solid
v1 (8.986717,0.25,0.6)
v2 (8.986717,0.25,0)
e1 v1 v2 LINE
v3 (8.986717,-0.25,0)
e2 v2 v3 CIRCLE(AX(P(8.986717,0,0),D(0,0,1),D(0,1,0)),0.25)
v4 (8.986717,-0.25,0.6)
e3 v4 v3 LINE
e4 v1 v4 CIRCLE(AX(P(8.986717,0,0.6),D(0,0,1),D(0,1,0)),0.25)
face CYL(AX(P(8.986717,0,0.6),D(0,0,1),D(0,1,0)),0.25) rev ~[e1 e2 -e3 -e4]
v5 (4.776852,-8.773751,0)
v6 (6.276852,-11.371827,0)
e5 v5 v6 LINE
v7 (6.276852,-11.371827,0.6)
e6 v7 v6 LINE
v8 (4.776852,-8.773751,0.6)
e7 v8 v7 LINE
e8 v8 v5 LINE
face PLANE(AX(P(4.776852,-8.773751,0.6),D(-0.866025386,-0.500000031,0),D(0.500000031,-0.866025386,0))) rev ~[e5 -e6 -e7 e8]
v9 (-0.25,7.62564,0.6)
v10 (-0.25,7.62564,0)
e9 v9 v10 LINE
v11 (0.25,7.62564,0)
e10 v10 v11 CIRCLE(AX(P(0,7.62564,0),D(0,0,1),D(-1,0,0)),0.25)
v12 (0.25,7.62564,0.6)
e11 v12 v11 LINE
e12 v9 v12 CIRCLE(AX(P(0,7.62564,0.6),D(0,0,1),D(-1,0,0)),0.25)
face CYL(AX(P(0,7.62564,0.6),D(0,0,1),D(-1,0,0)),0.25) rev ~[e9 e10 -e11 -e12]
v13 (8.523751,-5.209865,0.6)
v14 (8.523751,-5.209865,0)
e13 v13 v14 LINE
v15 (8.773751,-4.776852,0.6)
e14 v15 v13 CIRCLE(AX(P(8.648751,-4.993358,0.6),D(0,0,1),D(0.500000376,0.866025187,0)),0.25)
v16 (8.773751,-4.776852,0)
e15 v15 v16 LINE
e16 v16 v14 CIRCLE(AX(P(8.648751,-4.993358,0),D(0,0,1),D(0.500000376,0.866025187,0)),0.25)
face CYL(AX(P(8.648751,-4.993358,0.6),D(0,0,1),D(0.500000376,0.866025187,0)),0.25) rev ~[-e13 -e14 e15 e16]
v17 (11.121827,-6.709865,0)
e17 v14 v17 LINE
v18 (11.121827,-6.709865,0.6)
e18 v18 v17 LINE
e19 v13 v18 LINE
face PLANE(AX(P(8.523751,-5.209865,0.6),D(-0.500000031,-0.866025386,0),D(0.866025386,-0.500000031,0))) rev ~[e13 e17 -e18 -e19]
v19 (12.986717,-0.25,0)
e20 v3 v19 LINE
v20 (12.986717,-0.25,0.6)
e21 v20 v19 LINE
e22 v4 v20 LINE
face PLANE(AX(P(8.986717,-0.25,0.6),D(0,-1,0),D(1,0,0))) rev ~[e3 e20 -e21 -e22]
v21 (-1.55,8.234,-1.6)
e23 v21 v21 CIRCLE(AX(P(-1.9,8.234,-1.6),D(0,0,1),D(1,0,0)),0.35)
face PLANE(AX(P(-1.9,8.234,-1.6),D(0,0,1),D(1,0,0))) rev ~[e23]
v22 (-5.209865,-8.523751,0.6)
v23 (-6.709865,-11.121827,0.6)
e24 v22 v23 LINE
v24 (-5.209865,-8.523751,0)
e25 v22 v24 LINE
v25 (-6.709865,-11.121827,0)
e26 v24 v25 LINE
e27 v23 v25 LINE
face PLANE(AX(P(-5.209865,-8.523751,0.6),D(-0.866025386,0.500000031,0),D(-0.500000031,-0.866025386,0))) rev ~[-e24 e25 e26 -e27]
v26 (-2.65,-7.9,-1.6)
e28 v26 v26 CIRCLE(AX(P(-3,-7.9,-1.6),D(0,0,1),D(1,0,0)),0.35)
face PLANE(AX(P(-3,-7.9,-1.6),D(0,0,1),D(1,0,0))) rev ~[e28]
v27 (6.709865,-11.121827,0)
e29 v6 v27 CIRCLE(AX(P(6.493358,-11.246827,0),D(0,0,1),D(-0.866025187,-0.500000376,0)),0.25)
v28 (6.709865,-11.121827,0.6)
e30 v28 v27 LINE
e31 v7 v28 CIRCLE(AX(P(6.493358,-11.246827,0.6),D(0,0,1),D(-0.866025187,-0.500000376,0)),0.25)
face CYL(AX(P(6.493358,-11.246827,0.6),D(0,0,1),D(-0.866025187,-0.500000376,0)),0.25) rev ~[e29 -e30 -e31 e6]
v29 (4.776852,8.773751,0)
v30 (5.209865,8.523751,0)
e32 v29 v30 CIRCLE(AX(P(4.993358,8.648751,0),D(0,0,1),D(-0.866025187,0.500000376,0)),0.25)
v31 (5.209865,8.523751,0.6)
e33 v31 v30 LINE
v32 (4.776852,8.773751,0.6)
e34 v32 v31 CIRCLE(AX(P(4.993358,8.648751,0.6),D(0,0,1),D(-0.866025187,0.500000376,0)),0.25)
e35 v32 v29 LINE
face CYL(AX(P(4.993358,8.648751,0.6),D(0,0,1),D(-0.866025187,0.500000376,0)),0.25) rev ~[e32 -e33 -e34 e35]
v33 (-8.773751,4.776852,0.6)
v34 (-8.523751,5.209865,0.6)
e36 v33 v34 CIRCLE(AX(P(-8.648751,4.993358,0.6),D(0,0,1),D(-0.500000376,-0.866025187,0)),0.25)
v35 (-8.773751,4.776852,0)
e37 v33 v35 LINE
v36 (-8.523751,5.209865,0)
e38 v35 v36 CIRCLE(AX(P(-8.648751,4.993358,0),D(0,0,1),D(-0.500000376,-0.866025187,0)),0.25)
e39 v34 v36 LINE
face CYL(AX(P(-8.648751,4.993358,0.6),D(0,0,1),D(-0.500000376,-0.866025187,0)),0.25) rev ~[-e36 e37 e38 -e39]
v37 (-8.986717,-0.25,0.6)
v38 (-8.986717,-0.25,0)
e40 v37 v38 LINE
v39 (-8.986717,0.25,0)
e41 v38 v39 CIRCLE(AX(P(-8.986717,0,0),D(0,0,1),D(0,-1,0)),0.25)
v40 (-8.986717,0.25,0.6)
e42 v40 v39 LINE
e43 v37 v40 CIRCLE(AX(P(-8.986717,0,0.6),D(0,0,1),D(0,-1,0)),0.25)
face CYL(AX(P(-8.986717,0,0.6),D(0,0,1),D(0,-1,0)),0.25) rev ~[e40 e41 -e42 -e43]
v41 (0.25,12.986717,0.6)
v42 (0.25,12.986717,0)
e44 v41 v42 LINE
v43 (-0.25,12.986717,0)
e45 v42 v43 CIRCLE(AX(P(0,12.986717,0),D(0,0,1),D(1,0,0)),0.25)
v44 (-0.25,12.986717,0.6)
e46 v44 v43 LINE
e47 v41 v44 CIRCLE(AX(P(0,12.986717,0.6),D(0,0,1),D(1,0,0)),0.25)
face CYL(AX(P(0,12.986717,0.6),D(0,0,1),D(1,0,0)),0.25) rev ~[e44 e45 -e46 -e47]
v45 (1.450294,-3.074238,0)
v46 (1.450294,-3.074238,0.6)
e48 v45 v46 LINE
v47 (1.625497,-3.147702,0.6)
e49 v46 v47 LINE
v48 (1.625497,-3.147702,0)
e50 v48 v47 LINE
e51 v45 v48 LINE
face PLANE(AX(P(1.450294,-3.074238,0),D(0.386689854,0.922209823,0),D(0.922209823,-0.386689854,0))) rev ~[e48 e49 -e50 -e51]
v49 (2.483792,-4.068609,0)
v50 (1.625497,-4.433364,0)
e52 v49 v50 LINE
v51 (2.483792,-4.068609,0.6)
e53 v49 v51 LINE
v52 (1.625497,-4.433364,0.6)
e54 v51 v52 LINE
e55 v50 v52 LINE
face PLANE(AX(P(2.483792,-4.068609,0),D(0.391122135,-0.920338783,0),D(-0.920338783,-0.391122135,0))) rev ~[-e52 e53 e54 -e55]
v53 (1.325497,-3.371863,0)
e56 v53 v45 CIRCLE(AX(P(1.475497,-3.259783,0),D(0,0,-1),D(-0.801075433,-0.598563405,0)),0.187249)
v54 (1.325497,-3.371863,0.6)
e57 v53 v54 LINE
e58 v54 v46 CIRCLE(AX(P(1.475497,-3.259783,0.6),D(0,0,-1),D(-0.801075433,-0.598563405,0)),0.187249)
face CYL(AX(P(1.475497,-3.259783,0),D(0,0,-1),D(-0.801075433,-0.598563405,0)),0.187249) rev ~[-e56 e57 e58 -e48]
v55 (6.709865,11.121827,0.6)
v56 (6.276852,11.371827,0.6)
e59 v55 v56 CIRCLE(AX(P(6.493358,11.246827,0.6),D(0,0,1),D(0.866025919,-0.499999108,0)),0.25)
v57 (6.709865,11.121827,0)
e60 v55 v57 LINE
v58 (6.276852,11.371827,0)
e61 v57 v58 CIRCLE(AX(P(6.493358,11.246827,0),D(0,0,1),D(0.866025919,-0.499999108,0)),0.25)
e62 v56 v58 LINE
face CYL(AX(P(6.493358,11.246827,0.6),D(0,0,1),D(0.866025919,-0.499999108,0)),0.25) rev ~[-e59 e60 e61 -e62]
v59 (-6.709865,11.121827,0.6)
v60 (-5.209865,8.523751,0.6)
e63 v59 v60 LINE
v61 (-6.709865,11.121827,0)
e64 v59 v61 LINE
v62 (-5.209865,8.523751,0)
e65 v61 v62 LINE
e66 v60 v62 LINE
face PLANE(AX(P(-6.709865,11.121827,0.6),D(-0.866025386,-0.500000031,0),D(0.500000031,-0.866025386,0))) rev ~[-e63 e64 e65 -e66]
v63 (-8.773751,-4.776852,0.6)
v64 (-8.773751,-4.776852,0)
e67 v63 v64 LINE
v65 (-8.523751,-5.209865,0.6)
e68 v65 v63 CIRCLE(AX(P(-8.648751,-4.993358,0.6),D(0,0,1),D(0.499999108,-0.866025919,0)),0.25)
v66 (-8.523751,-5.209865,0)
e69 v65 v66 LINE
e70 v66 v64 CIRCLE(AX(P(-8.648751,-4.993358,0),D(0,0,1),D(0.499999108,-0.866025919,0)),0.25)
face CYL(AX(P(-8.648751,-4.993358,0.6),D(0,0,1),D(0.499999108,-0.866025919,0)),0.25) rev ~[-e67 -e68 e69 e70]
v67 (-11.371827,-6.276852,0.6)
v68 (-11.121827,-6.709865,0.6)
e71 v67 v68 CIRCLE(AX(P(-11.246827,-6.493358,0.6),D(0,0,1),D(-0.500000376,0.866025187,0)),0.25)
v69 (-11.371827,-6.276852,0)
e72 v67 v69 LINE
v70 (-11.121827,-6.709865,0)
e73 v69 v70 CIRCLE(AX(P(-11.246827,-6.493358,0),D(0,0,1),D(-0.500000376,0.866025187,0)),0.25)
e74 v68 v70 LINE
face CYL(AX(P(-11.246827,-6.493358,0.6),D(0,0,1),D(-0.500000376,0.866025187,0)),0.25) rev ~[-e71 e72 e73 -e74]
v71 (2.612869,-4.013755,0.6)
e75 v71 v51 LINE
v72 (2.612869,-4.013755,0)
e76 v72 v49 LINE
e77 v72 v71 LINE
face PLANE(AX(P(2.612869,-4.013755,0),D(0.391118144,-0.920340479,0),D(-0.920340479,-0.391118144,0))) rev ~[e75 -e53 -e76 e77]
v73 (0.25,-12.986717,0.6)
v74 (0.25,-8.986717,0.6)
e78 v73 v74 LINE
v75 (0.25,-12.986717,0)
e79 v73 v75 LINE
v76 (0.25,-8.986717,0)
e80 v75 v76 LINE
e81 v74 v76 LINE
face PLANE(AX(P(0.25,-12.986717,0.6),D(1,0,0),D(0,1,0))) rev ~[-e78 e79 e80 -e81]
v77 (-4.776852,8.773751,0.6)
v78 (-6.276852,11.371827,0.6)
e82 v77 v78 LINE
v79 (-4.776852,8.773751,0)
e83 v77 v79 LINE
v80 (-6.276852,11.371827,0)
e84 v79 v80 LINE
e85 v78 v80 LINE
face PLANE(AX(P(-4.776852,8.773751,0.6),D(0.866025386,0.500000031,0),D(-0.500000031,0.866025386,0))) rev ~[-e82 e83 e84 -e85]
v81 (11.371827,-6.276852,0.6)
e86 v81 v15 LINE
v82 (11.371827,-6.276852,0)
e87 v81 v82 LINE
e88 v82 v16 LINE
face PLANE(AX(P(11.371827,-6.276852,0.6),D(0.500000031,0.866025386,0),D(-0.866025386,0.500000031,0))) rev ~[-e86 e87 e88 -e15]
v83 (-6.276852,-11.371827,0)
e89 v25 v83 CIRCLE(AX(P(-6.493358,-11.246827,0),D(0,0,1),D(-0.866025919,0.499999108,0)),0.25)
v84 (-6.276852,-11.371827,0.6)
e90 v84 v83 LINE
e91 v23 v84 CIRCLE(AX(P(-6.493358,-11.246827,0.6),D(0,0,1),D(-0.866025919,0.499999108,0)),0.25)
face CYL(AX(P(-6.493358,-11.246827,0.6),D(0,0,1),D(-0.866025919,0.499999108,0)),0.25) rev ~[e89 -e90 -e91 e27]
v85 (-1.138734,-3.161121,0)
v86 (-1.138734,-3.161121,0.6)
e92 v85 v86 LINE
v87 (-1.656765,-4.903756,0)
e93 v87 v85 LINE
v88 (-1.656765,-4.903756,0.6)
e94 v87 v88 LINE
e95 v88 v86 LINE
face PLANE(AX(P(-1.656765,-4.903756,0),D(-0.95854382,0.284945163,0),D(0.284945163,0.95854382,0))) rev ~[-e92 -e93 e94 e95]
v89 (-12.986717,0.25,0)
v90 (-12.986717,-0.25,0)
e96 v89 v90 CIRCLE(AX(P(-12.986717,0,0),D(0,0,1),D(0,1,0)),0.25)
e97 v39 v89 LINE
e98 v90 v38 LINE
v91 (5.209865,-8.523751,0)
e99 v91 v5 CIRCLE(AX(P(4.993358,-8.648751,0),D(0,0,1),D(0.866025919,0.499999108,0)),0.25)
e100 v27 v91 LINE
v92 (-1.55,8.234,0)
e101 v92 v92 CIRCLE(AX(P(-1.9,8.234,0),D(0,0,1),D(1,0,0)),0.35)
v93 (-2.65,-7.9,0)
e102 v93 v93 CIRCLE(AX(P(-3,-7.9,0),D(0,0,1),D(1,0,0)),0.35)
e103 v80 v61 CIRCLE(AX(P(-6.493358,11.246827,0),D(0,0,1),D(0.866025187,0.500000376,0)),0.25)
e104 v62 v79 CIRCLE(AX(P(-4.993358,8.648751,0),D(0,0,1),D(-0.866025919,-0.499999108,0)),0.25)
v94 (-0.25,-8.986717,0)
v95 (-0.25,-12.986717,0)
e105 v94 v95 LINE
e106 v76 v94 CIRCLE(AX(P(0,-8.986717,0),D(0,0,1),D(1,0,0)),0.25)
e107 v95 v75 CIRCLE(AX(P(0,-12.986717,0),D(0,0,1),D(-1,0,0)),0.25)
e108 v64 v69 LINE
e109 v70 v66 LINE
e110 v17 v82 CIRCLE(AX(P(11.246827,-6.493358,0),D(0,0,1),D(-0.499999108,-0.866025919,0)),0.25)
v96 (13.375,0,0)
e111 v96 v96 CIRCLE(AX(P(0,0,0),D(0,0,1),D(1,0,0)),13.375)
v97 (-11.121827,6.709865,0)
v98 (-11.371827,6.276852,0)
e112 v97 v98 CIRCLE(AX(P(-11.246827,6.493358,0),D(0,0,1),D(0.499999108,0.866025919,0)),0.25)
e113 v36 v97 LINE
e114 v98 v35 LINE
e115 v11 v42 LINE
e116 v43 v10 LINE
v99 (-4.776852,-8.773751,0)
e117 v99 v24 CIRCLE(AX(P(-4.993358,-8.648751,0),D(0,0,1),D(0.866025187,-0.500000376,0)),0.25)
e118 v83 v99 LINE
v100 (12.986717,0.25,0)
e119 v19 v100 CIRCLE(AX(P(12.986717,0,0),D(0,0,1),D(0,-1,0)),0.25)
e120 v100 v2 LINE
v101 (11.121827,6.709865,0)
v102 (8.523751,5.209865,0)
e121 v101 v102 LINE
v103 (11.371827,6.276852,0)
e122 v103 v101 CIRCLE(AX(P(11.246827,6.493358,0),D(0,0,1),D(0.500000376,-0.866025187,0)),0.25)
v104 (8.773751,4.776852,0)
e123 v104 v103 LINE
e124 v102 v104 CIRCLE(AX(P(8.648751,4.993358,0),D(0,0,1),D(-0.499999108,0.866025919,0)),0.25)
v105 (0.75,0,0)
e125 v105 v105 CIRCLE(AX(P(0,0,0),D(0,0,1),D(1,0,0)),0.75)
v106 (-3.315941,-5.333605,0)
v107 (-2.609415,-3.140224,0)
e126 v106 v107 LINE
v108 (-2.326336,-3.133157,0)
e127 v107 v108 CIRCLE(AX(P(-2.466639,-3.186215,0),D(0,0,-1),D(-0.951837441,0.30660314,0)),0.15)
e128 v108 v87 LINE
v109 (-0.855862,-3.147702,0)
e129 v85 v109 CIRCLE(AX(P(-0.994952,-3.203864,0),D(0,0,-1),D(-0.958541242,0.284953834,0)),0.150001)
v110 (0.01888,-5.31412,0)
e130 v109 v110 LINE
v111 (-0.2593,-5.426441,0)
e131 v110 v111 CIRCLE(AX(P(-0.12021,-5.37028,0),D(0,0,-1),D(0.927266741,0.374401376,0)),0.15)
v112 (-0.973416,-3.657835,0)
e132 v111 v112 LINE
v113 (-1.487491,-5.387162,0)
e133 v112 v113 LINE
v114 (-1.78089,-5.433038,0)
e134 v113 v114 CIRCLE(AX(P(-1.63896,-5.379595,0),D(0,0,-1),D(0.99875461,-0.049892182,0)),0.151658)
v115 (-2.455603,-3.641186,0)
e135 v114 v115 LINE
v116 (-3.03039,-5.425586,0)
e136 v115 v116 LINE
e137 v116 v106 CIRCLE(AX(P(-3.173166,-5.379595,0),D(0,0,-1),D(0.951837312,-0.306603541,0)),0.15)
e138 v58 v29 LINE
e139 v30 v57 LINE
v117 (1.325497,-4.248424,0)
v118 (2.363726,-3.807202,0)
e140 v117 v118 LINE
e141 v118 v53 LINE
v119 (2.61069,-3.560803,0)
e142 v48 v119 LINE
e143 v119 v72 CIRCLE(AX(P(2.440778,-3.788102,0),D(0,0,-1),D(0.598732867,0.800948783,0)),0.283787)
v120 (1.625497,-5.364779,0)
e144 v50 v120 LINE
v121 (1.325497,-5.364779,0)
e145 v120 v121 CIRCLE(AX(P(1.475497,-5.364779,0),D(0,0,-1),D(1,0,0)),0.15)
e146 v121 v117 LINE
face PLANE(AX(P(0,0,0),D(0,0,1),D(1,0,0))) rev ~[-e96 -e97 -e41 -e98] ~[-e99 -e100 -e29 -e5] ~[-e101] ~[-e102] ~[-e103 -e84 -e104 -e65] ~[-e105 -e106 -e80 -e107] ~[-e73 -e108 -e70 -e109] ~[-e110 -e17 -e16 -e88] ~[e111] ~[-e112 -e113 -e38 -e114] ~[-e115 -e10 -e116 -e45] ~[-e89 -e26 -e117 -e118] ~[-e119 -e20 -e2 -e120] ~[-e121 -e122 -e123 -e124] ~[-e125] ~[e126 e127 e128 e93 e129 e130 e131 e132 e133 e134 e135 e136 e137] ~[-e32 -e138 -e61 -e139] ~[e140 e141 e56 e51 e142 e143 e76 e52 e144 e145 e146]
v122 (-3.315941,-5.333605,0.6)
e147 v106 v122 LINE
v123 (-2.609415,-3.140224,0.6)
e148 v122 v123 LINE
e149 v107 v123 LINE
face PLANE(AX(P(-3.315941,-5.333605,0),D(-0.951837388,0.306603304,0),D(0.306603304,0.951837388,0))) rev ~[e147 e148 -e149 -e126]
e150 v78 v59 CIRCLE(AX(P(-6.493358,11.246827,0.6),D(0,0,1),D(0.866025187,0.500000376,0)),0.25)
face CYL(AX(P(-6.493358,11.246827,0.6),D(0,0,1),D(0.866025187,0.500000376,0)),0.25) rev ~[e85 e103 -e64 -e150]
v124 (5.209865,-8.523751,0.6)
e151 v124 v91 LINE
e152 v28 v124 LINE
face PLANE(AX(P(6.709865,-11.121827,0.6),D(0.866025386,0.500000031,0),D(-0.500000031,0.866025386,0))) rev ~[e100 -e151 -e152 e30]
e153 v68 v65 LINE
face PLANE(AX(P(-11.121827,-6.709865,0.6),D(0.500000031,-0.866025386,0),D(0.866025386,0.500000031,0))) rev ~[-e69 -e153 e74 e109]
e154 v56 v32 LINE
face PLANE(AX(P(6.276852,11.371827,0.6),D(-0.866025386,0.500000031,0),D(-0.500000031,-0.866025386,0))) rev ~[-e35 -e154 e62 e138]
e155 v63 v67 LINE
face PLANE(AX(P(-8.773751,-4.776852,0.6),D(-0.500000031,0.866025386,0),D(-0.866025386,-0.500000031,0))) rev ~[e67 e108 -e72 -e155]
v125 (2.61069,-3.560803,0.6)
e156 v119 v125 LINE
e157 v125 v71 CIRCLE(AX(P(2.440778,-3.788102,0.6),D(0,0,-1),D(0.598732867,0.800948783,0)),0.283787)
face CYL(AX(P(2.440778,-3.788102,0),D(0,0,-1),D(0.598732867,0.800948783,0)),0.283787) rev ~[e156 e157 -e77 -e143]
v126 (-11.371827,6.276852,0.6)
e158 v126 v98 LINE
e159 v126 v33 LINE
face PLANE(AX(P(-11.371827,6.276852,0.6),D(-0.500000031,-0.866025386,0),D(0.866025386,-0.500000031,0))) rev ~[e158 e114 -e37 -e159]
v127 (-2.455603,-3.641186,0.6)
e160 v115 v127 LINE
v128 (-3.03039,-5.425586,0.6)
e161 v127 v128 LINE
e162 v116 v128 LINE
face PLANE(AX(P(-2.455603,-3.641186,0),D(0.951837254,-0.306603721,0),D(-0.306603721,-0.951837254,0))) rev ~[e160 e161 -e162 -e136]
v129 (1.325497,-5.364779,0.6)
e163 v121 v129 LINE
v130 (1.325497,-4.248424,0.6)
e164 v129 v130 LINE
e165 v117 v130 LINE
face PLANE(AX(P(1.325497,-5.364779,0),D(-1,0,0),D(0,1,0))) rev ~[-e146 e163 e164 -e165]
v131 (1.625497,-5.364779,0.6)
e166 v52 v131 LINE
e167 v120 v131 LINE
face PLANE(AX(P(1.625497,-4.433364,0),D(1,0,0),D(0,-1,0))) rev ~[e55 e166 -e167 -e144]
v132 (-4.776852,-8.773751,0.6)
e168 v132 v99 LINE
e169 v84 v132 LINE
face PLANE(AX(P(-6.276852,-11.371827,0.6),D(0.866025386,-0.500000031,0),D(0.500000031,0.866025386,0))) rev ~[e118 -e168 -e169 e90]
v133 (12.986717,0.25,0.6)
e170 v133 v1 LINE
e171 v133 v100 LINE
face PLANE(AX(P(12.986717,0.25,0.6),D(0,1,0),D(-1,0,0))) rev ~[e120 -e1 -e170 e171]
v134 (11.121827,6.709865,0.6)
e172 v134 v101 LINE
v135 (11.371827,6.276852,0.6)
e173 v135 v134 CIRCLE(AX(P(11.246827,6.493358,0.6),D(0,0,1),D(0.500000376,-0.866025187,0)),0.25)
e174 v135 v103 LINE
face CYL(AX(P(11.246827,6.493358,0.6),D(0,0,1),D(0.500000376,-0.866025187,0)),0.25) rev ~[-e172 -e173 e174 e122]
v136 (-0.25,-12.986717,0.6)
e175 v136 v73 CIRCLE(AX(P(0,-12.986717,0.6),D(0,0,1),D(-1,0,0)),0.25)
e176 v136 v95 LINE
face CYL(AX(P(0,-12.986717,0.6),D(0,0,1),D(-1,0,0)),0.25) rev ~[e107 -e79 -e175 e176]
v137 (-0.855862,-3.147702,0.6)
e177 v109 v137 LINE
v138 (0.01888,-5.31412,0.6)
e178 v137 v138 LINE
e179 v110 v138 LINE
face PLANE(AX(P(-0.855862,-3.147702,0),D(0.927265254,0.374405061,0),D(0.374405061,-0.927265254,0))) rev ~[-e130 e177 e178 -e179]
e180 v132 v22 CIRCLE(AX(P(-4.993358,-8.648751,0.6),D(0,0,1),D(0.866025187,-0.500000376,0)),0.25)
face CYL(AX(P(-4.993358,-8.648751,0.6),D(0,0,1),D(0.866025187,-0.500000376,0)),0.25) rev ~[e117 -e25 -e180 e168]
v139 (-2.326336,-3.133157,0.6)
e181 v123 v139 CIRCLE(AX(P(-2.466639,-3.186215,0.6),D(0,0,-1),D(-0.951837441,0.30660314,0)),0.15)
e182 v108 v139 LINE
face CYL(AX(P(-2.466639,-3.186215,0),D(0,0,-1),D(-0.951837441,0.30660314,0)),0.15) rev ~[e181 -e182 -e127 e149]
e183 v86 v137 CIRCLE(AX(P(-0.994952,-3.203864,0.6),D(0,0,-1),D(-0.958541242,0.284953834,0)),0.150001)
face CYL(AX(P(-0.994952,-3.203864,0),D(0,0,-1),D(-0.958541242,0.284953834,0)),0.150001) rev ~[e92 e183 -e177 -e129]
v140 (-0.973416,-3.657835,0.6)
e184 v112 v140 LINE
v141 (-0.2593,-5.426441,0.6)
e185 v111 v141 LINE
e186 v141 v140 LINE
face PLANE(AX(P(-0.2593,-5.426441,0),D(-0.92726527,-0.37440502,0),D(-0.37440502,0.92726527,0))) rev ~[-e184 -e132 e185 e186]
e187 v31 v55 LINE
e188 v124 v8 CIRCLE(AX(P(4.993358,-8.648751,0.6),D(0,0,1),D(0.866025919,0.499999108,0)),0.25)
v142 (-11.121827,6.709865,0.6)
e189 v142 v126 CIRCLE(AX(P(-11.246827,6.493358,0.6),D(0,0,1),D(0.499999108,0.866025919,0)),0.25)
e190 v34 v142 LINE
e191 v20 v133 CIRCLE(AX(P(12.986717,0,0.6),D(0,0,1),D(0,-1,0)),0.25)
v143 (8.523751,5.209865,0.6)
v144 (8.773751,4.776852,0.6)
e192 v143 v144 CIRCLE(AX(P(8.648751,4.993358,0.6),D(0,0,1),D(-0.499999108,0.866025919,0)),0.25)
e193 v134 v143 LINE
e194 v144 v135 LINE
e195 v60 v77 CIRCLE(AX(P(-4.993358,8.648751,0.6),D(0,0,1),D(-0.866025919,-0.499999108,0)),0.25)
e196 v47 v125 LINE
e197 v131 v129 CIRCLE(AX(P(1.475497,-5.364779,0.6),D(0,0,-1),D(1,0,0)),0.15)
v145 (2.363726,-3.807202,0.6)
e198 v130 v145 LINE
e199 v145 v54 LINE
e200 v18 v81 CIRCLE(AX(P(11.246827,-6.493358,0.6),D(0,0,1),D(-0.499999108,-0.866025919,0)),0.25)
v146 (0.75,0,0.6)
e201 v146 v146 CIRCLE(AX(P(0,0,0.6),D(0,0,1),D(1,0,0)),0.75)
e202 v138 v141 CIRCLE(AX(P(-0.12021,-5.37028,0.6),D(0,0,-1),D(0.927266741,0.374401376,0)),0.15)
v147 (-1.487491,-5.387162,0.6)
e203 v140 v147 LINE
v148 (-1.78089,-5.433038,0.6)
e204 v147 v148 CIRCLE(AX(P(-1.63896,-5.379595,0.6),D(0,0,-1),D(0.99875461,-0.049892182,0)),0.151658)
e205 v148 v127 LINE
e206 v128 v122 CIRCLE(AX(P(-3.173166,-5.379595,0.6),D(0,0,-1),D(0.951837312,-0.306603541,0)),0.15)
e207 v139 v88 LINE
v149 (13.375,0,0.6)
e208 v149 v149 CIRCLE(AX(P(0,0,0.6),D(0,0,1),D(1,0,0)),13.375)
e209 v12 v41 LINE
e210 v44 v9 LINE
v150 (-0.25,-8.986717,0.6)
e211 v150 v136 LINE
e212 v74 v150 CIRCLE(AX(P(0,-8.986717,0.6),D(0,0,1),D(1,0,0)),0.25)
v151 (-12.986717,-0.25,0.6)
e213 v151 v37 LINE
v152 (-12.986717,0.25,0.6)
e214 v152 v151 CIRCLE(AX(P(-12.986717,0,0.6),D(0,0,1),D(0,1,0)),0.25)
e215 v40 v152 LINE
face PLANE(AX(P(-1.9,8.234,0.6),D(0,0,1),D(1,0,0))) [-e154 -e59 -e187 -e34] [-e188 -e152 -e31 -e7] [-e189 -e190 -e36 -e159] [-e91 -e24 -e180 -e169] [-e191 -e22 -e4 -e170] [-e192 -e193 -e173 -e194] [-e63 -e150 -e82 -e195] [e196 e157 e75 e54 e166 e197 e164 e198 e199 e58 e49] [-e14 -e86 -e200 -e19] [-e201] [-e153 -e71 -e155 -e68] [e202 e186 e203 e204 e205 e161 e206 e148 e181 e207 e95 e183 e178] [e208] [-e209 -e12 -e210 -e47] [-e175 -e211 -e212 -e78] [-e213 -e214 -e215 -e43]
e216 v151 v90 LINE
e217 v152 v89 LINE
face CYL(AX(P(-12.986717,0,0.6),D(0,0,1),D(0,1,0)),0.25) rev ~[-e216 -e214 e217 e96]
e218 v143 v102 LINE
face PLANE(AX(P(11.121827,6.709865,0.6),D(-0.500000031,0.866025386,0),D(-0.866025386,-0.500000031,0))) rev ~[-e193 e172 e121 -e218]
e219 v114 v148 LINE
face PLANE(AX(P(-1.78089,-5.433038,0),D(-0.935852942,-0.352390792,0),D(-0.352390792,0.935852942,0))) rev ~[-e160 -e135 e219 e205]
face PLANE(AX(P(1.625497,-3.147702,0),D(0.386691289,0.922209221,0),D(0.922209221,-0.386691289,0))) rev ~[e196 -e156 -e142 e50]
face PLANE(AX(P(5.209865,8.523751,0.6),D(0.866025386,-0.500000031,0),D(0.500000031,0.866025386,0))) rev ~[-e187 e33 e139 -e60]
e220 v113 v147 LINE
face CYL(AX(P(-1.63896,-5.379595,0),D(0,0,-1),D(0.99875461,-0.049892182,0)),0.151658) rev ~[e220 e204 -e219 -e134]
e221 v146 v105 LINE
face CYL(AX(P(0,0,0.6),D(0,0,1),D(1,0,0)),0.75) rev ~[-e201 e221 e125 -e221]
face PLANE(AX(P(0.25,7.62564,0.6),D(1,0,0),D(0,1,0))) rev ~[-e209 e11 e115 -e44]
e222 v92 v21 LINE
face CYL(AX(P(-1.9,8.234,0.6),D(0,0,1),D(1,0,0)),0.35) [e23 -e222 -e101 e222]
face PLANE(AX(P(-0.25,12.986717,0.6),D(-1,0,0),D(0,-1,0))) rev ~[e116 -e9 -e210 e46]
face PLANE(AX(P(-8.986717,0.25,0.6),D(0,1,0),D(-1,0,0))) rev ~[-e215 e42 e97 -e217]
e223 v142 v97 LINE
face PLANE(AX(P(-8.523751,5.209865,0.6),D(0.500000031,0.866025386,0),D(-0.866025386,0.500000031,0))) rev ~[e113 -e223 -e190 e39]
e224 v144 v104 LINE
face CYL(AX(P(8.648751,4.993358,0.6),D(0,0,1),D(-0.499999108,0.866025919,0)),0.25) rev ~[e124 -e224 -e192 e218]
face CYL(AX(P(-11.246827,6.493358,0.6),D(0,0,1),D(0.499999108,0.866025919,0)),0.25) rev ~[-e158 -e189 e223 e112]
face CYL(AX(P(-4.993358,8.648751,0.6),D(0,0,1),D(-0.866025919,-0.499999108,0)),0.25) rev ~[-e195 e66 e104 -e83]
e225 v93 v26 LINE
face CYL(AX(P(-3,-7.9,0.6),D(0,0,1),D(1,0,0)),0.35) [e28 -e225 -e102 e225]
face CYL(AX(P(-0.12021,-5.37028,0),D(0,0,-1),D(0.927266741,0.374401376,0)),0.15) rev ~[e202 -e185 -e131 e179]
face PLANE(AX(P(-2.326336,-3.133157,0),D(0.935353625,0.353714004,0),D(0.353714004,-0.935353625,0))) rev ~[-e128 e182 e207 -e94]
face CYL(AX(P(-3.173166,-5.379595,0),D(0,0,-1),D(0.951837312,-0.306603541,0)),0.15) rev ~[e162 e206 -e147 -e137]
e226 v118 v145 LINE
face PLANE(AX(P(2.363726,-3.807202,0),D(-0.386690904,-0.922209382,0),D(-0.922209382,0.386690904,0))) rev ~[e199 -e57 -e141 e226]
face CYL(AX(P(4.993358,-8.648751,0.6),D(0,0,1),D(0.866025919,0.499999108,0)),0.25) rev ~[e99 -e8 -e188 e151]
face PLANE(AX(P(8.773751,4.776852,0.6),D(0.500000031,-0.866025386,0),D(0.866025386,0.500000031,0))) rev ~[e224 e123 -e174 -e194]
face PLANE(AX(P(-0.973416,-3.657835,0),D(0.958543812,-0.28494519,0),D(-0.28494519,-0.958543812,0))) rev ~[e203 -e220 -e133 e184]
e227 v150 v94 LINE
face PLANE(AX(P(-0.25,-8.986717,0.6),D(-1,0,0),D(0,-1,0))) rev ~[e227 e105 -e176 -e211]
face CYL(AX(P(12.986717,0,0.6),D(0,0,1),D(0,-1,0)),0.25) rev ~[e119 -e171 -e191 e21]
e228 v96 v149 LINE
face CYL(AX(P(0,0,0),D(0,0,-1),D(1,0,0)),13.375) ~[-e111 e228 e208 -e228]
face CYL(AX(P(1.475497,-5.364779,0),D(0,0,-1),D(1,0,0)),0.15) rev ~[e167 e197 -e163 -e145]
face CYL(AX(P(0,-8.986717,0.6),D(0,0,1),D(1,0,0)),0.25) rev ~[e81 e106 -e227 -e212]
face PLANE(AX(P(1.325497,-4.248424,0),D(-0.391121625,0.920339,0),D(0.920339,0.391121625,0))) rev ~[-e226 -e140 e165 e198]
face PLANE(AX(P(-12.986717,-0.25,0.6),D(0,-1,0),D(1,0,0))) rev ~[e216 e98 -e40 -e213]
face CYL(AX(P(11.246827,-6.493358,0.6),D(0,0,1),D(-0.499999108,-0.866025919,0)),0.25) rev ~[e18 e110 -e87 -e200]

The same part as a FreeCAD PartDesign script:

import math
import FreeCAD as App
import Part
import Sketcher
from FreeCAD import Vector
Q = App.Units.Quantity

doc = App.newDocument("Part")
body = doc.addObject("PartDesign::Body", "Body")

# Sketch on XY plane
sketch1 = body.newObject("Sketcher::SketchObject", "Sketch")
sketch1.AttachmentSupport = (doc.getObject("XY_Plane"), [""])
sketch1.MapMode = "FlatFace"
sketch1.addGeometry([
    Part.Circle(Vector(0, 0, 0), Vector(0, 0, 1), 13.375),  # 0
    Part.LineSegment(Vector(-1.78089, -5.433038, 0), Vector(-2.455603, -3.641186, 0)),  # 1
    Part.LineSegment(Vector(-2.455603, -3.641186, 0), Vector(-3.03039, -5.425586, 0)),  # 2
    Part.ArcOfCircle(Part.Circle(Vector(-3.173166, -5.379595, 0), Vector(0, 0, 1), 0.15), math.radians(162.145337), math.radians(342.145337)),  # 3
    Part.LineSegment(Vector(-3.315941, -5.333605, 0), Vector(-2.609415, -3.140224, 0)),  # 4
    Part.ArcOfCircle(Part.Circle(Vector(-2.466639, -3.186215, 0), Vector(0, 0, 1), 0.15), math.radians(20.714796), math.radians(162.145361)),  # 5
    Part.LineSegment(Vector(-2.326336, -3.133157, 0), Vector(-1.656765, -4.903756, 0)),  # 6
    Part.LineSegment(Vector(-1.656765, -4.903756, 0), Vector(-1.138734, -3.161121, 0)),  # 7
    Part.ArcOfCircle(Part.Circle(Vector(-0.994952, -3.203864, 0), Vector(0, 0, 1), 0.150001), math.radians(21.988059), math.radians(163.443911)),  # 8
    Part.LineSegment(Vector(-0.855862, -3.147702, 0), Vector(0.01888, -5.31412, 0)),  # 9
    Part.ArcOfCircle(Part.Circle(Vector(-0.12021, -5.37028, 0), Vector(0, 0, 1), 0.15), math.radians(-158.01247), math.radians(21.987319)),  # 10
    Part.LineSegment(Vector(-0.2593, -5.426441, 0), Vector(-0.973416, -3.657835, 0)),  # 11
    Part.LineSegment(Vector(-0.973416, -3.657835, 0), Vector(-1.487491, -5.387162, 0)),  # 12
    Part.ArcOfCircle(Part.Circle(Vector(-1.63896, -5.379595, 0), Vector(0, 0, 1), 0.151658), math.radians(-159.366528), math.radians(-2.859799)),  # 13
    Part.LineSegment(Vector(1.625497, -4.433364, 0), Vector(1.625497, -5.364779, 0)),  # 14
    Part.ArcOfCircle(Part.Circle(Vector(1.475497, -5.364779, 0), Vector(0, 0, 1), 0.15), math.radians(180), math.radians(360)),  # 15
    Part.LineSegment(Vector(1.325497, -5.364779, 0), Vector(1.325497, -4.248424, 0)),  # 16
    Part.LineSegment(Vector(1.325497, -4.248424, 0), Vector(2.363726, -3.807202, 0)),  # 17
    Part.LineSegment(Vector(2.363726, -3.807202, 0), Vector(1.325497, -3.371863, 0)),  # 18
    Part.ArcOfCircle(Part.Circle(Vector(1.475497, -3.259783, 0), Vector(0, 0, 1), 0.187249), math.radians(97.735384), math.radians(216.767078)),  # 19
    Part.LineSegment(Vector(1.450294, -3.074238, 0), Vector(1.625497, -3.147702, 0)),  # 20
    Part.LineSegment(Vector(1.625497, -3.147702, 0), Vector(2.61069, -3.560803, 0)),  # 21
    Part.ArcOfCircle(Part.Circle(Vector(2.440778, -3.788102, 0), Vector(0, 0, 1), 0.283787), math.radians(-52.669543), math.radians(53.2208)),  # 22
    Part.LineSegment(Vector(2.612869, -4.013755, 0), Vector(2.483792, -4.068609, 0)),  # 23
    Part.LineSegment(Vector(2.483792, -4.068609, 0), Vector(1.625497, -4.433364, 0)),  # 24
], False)
sketch1.addConstraint([
    Sketcher.Constraint("Coincident", 1, 2, 2, 1),
    Sketcher.Constraint("Tangent", 2, 2, 3, 2),
    Sketcher.Constraint("Tangent", 3, 1, 4, 1),
    Sketcher.Constraint("Tangent", 4, 2, 5, 2),
    Sketcher.Constraint("Coincident", 5, 1, 6, 1),
    Sketcher.Constraint("Coincident", 6, 2, 7, 1),
    Sketcher.Constraint("Coincident", 7, 2, 8, 2),
    Sketcher.Constraint("Coincident", 8, 1, 9, 1),
    Sketcher.Constraint("Coincident", 9, 2, 10, 2),
    Sketcher.Constraint("Tangent", 10, 1, 11, 1),
    Sketcher.Constraint("Coincident", 11, 2, 12, 1),
    Sketcher.Constraint("Coincident", 12, 2, 13, 2),
    Sketcher.Constraint("Coincident", 13, 1, 1, 1),
    Sketcher.Constraint("Tangent", 14, 2, 15, 2),
    Sketcher.Constraint("Tangent", 15, 1, 16, 1),
    Sketcher.Constraint("Coincident", 16, 2, 17, 1),
    Sketcher.Constraint("Coincident", 17, 2, 18, 1),
    Sketcher.Constraint("Coincident", 18, 2, 19, 2),
    Sketcher.Constraint("Coincident", 19, 1, 20, 1),
    Sketcher.Constraint("Coincident", 20, 2, 21, 1),
    Sketcher.Constraint("Coincident", 21, 2, 22, 2),
    Sketcher.Constraint("Coincident", 22, 1, 23, 1),
    Sketcher.Constraint("Coincident", 23, 2, 24, 1),
    Sketcher.Constraint("Coincident", 24, 2, 14, 1),
    Sketcher.Constraint("Vertical", 14),
    Sketcher.Constraint("Vertical", 16),
    Sketcher.Constraint("Coincident", 0, 3, -1, 1),
    Sketcher.Constraint("Equal", 3, 5),
    Sketcher.Constraint("Equal", 5, 8),
    Sketcher.Constraint("Equal", 8, 10),
    Sketcher.Constraint("Equal", 10, 15),
    Sketcher.Constraint("Parallel", 2, 4),
    Sketcher.Constraint("Parallel", 9, 11),
    Sketcher.Constraint("Parallel", 7, 12),
    Sketcher.Constraint("Parallel", 18, 20),
    Sketcher.Constraint("Parallel", 20, 21),
    Sketcher.Constraint("Parallel", 17, 24),
    Sketcher.Constraint("Horizontal", 3, 3, 13, 3),
    Sketcher.Constraint("Horizontal", 8, 1, 20, 2),
    Sketcher.Constraint("Vertical", 15, 3, 19, 3),
    Sketcher.Constraint("Vertical", 16, 2, 18, 2),
    Sketcher.Constraint("Vertical", 14, 2, 20, 2),
    Sketcher.Constraint("Diameter", 0, Q("26.75 mm")),
    Sketcher.Constraint("Radius", 3, Q("0.15 mm")),
    Sketcher.Constraint("Radius", 13, Q("0.151658 mm")),
    Sketcher.Constraint("Radius", 19, Q("0.187249 mm")),
    Sketcher.Constraint("Radius", 22, Q("0.283787 mm")),
    Sketcher.Constraint("DistanceY", 22, 3, -1, 1, Q("3.788102 mm")),
    Sketcher.Constraint("DistanceX", 10, 1, -1, 1, Q("0.2593 mm")),
    Sketcher.Constraint("DistanceY", 10, 3, 15, 3, Q("0.005501 mm")),
    Sketcher.Constraint("DistanceY", 2, 2, 1, 2, Q("1.7844 mm")),
    Sketcher.Constraint("DistanceX", 3, 1, 5, 3, Q("0.849302 mm")),
    Sketcher.Constraint("DistanceX", 3, 3, 6, 2, Q("1.516401 mm")),
    Sketcher.Constraint("DistanceX", 13, 1, 12, 2, Q("0.293399 mm")),
    Sketcher.Constraint("DistanceX", 2, 2, 13, 1, Q("1.2495 mm")),
    Sketcher.Constraint("DistanceY", 17, 2, 22, 3, Q("0.0191 mm")),
    Sketcher.Constraint("DistanceY", 17, 2, 20, 2, Q("0.6595 mm")),
    Sketcher.Constraint("DistanceY", 22, 3, 21, 2, Q("0.227299 mm")),
    Sketcher.Constraint("Distance", 2, Q("1.87469 mm")),
    Sketcher.Constraint("Distance", 9, Q("2.336352 mm")),
    Sketcher.Constraint("Distance", 12, Q("1.804119 mm")),
    Sketcher.Constraint("Distance", 20, Q("0.189982 mm")),
    Sketcher.Constraint("Distance", 23, Q("0.140249 mm")),
    Sketcher.Constraint("DistanceY", 14, 2, 14, 1, Q("0.931415 mm")),
    Sketcher.Constraint("DistanceY", 16, 1, 16, 2, Q("1.116355 mm")),
    Sketcher.Constraint("DistanceX", 5, 3, -1, 1, Q("2.466639 mm")),
    Sketcher.Constraint("DistanceX", 10, 3, -1, 1, Q("0.12021 mm")),
    Sketcher.Constraint("DistanceY", 10, 3, -1, 1, Q("5.37028 mm")),
    Sketcher.Constraint("DistanceX", 13, 3, -1, 1, Q("1.63896 mm")),
    Sketcher.Constraint("DistanceY", 7, 2, -1, 1, Q("3.161121 mm")),
    Sketcher.Constraint("DistanceY", 13, 1, -1, 1, Q("5.433038 mm")),
    Sketcher.Constraint("DistanceY", 19, 1, -1, 1, Q("3.074238 mm")),
    Sketcher.Constraint("DistanceX", -1, 1, 21, 2, Q("2.61069 mm")),
    Sketcher.Constraint("DistanceX", -1, 1, 22, 1, Q("2.612869 mm")),
    Sketcher.Constraint("DistanceY", 8, 3, 5, 3, Q("0.01765 mm")),
    Sketcher.Constraint("DistanceX", 4, 2, 5, 1, Q("0.283079 mm")),
])
pad1 = body.newObject("PartDesign::Pad", "Pad")
pad1.Profile = sketch1
pad1.Length = 0.6

# Sketch on XY plane
sketch2 = body.newObject("Sketcher::SketchObject", "Sketch001")
sketch2.AttachmentSupport = (doc.getObject("XY_Plane"), [""])
sketch2.MapMode = "FlatFace"
sketch2.AttachmentOffset = App.Placement(Vector(0, 0, 0.6), App.Rotation())
sketch2.addGeometry([
    Part.ArcOfCircle(Part.Circle(Vector(-11.246827, 6.493358, 0), Vector(0, 0, 1), 0.25), math.radians(60.000059), math.radians(239.999975)),  # 0
    Part.LineSegment(Vector(-11.371827, 6.276852, 0), Vector(-8.773751, 4.776852, 0)),  # 1
    Part.ArcOfCircle(Part.Circle(Vector(-8.648751, 4.993358, 0), Vector(0, 0, 1), 0.25), math.radians(-120.000025), math.radians(60.000059)),  # 2
    Part.LineSegment(Vector(-8.523751, 5.209865, 0), Vector(-11.121827, 6.709865, 0)),  # 3
    Part.LineSegment(Vector(-8.986717, 0.25, 0), Vector(-12.986717, 0.25, 0)),  # 4
    Part.ArcOfCircle(Part.Circle(Vector(-12.986717, 0, 0), Vector(0, 0, 1), 0.25), math.radians(90), math.radians(270)),  # 5
    Part.LineSegment(Vector(-12.986717, -0.25, 0), Vector(-8.986717, -0.25, 0)),  # 6
    Part.ArcOfCircle(Part.Circle(Vector(-8.986717, 0, 0), Vector(0, 0, 1), 0.25), math.radians(-90), math.radians(90)),  # 7
    Part.ArcOfCircle(Part.Circle(Vector(-6.493358, 11.246827, 0), Vector(0, 0, 1), 0.25), math.radians(30.000025), math.radians(209.999941)),  # 8
    Part.LineSegment(Vector(-6.709865, 11.121827, 0), Vector(-5.209865, 8.523751, 0)),  # 9
    Part.ArcOfCircle(Part.Circle(Vector(-4.993358, 8.648751, 0), Vector(0, 0, 1), 0.25), math.radians(-150.000059), math.radians(30.000025)),  # 10
    Part.LineSegment(Vector(-4.776852, 8.773751, 0), Vector(-6.276852, 11.371827, 0)),  # 11
    Part.LineSegment(Vector(0.25, 7.62564, 0), Vector(0.25, 12.986717, 0)),  # 12
    Part.ArcOfCircle(Part.Circle(Vector(0, 12.986717, 0), Vector(0, 0, 1), 0.25), math.radians(0), math.radians(180)),  # 13
    Part.LineSegment(Vector(-0.25, 12.986717, 0), Vector(-0.25, 7.62564, 0)),  # 14
    Part.ArcOfCircle(Part.Circle(Vector(0, 7.62564, 0), Vector(0, 0, 1), 0.25), math.radians(180), math.radians(360)),  # 15
    Part.ArcOfCircle(Part.Circle(Vector(6.493358, 11.246827, 0), Vector(0, 0, 1), 0.25), math.radians(-29.999941), math.radians(149.999975)),  # 16
    Part.LineSegment(Vector(6.276852, 11.371827, 0), Vector(4.776852, 8.773751, 0)),  # 17
    Part.ArcOfCircle(Part.Circle(Vector(4.993358, 8.648751, 0), Vector(0, 0, 1), 0.25), math.radians(149.999975), math.radians(330.000059)),  # 18
    Part.LineSegment(Vector(5.209865, 8.523751, 0), Vector(6.709865, 11.121827, 0)),  # 19
    Part.ArcOfCircle(Part.Circle(Vector(11.246827, 6.493358, 0), Vector(0, 0, 1), 0.25), math.radians(-59.999975), math.radians(119.999941)),  # 20
    Part.LineSegment(Vector(11.121827, 6.709865, 0), Vector(8.523751, 5.209865, 0)),  # 21
    Part.ArcOfCircle(Part.Circle(Vector(8.648751, 4.993358, 0), Vector(0, 0, 1), 0.25), math.radians(119.999941), math.radians(300.000025)),  # 22
    Part.LineSegment(Vector(8.773751, 4.776852, 0), Vector(11.371827, 6.276852, 0)),  # 23
    Part.LineSegment(Vector(8.986717, -0.25, 0), Vector(12.986717, -0.25, 0)),  # 24
    Part.ArcOfCircle(Part.Circle(Vector(12.986717, 0, 0), Vector(0, 0, 1), 0.25), math.radians(-90), math.radians(90)),  # 25
    Part.LineSegment(Vector(12.986717, 0.25, 0), Vector(8.986717, 0.25, 0)),  # 26
    Part.ArcOfCircle(Part.Circle(Vector(8.986717, 0, 0), Vector(0, 0, 1), 0.25), math.radians(90), math.radians(270)),  # 27
    Part.ArcOfCircle(Part.Circle(Vector(11.246827, -6.493358, 0), Vector(0, 0, 1), 0.25), math.radians(-119.999941), math.radians(59.999975)),  # 28
    Part.LineSegment(Vector(11.371827, -6.276852, 0), Vector(8.773751, -4.776852, 0)),  # 29
    Part.ArcOfCircle(Part.Circle(Vector(8.648751, -4.993358, 0), Vector(0, 0, 1), 0.25), math.radians(59.999975), math.radians(240.000059)),  # 30
    Part.LineSegment(Vector(8.523751, -5.209865, 0), Vector(11.121827, -6.709865, 0)),  # 31
    Part.LineSegment(Vector(-0.25, -8.986717, 0), Vector(-0.25, -12.986717, 0)),  # 32
    Part.ArcOfCircle(Part.Circle(Vector(0, -12.986717, 0), Vector(0, 0, 1), 0.25), math.radians(180), math.radians(360)),  # 33
    Part.LineSegment(Vector(0.25, -12.986717, 0), Vector(0.25, -8.986717, 0)),  # 34
    Part.ArcOfCircle(Part.Circle(Vector(0, -8.986717, 0), Vector(0, 0, 1), 0.25), math.radians(0), math.radians(180)),  # 35
    Part.ArcOfCircle(Part.Circle(Vector(6.493358, -11.246827, 0), Vector(0, 0, 1), 0.25), math.radians(-149.999975), math.radians(29.999941)),  # 36
    Part.LineSegment(Vector(6.709865, -11.121827, 0), Vector(5.209865, -8.523751, 0)),  # 37
    Part.ArcOfCircle(Part.Circle(Vector(4.993358, -8.648751, 0), Vector(0, 0, 1), 0.25), math.radians(29.999941), math.radians(210.000025)),  # 38
    Part.LineSegment(Vector(4.776852, -8.773751, 0), Vector(6.276852, -11.371827, 0)),  # 39
    Part.ArcOfCircle(Part.Circle(Vector(-6.493358, -11.246827, 0), Vector(0, 0, 1), 0.25), math.radians(150.000059), math.radians(329.999975)),  # 40
    Part.LineSegment(Vector(-6.276852, -11.371827, 0), Vector(-4.776852, -8.773751, 0)),  # 41
    Part.ArcOfCircle(Part.Circle(Vector(-4.993358, -8.648751, 0), Vector(0, 0, 1), 0.25), math.radians(-30.000025), math.radians(150.000059)),  # 42
    Part.LineSegment(Vector(-5.209865, -8.523751, 0), Vector(-6.709865, -11.121827, 0)),  # 43
    Part.ArcOfCircle(Part.Circle(Vector(-11.246827, -6.493358, 0), Vector(0, 0, 1), 0.25), math.radians(120.000025), math.radians(299.999941)),  # 44
    Part.LineSegment(Vector(-11.121827, -6.709865, 0), Vector(-8.523751, -5.209865, 0)),  # 45
    Part.ArcOfCircle(Part.Circle(Vector(-8.648751, -4.993358, 0), Vector(0, 0, 1), 0.25), math.radians(-60.000059), math.radians(120.000025)),  # 46
    Part.LineSegment(Vector(-8.773751, -4.776852, 0), Vector(-11.371827, -6.276852, 0)),  # 47
    Part.Circle(Vector(0, 0, 0), Vector(0, 0, 1), 0.75),  # 48
], False)
sketch2.addConstraint([
    Sketcher.Constraint("Tangent", 0, 2, 1, 1),
    Sketcher.Constraint("Tangent", 1, 2, 2, 1),
    Sketcher.Constraint("Tangent", 2, 2, 3, 1),
    Sketcher.Constraint("Tangent", 3, 2, 0, 1),
    Sketcher.Constraint("Tangent", 4, 2, 5, 1),
    Sketcher.Constraint("Tangent", 5, 2, 6, 1),
    Sketcher.Constraint("Tangent", 6, 2, 7, 1),
    Sketcher.Constraint("Tangent", 7, 2, 4, 1),
    Sketcher.Constraint("Tangent", 8, 2, 9, 1),
    Sketcher.Constraint("Tangent", 9, 2, 10, 1),
    Sketcher.Constraint("Tangent", 10, 2, 11, 1),
    Sketcher.Constraint("Tangent", 11, 2, 8, 1),
    Sketcher.Constraint("Tangent", 12, 2, 13, 1),
    Sketcher.Constraint("Tangent", 13, 2, 14, 1),
    Sketcher.Constraint("Tangent", 14, 2, 15, 1),
    Sketcher.Constraint("Tangent", 15, 2, 12, 1),
    Sketcher.Constraint("Tangent", 16, 2, 17, 1),
    Sketcher.Constraint("Tangent", 17, 2, 18, 1),
    Sketcher.Constraint("Tangent", 18, 2, 19, 1),
    Sketcher.Constraint("Tangent", 19, 2, 16, 1),
    Sketcher.Constraint("Tangent", 20, 2, 21, 1),
    Sketcher.Constraint("Tangent", 21, 2, 22, 1),
    Sketcher.Constraint("Tangent", 22, 2, 23, 1),
    Sketcher.Constraint("Tangent", 23, 2, 20, 1),
    Sketcher.Constraint("Tangent", 24, 2, 25, 1),
    Sketcher.Constraint("Tangent", 25, 2, 26, 1),
    Sketcher.Constraint("Tangent", 26, 2, 27, 1),
    Sketcher.Constraint("Tangent", 27, 2, 24, 1),
    Sketcher.Constraint("Tangent", 28, 2, 29, 1),
    Sketcher.Constraint("Tangent", 29, 2, 30, 1),
    Sketcher.Constraint("Tangent", 30, 2, 31, 1),
    Sketcher.Constraint("Tangent", 31, 2, 28, 1),
    Sketcher.Constraint("Tangent", 32, 2, 33, 1),
    Sketcher.Constraint("Tangent", 33, 2, 34, 1),
    Sketcher.Constraint("Tangent", 34, 2, 35, 1),
    Sketcher.Constraint("Tangent", 35, 2, 32, 1),
    Sketcher.Constraint("Tangent", 36, 2, 37, 1),
    Sketcher.Constraint("Tangent", 37, 2, 38, 1),
    Sketcher.Constraint("Tangent", 38, 2, 39, 1),
    Sketcher.Constraint("Tangent", 39, 2, 36, 1),
    Sketcher.Constraint("Tangent", 40, 2, 41, 1),
    Sketcher.Constraint("Tangent", 41, 2, 42, 1),
    Sketcher.Constraint("Tangent", 42, 2, 43, 1),
    Sketcher.Constraint("Tangent", 43, 2, 40, 1),
    Sketcher.Constraint("Tangent", 44, 2, 45, 1),
    Sketcher.Constraint("Tangent", 45, 2, 46, 1),
    Sketcher.Constraint("Tangent", 46, 2, 47, 1),
    Sketcher.Constraint("Tangent", 47, 2, 44, 1),
    Sketcher.Constraint("Horizontal", 4),
    Sketcher.Constraint("Horizontal", 6),
    Sketcher.Constraint("Vertical", 12),
    Sketcher.Constraint("Vertical", 14),
    Sketcher.Constraint("Horizontal", 24),
    Sketcher.Constraint("Horizontal", 26),
    Sketcher.Constraint("Vertical", 32),
    Sketcher.Constraint("Vertical", 34),
    Sketcher.Constraint("Coincident", 48, 3, -1, 1),
    Sketcher.Constraint("Equal", 0, 2),
    Sketcher.Constraint("Equal", 2, 5),
    Sketcher.Constraint("Equal", 7, 8),
    Sketcher.Constraint("Equal", 8, 10),
    Sketcher.Constraint("Equal", 10, 13),
    Sketcher.Constraint("Equal", 15, 16),
    Sketcher.Constraint("Equal", 16, 18),
    Sketcher.Constraint("Equal", 18, 20),
    Sketcher.Constraint("Equal", 20, 22),
    Sketcher.Constraint("Equal", 22, 25),
    Sketcher.Constraint("Equal", 27, 28),
    Sketcher.Constraint("Equal", 28, 30),
    Sketcher.Constraint("Equal", 30, 33),
    Sketcher.Constraint("Equal", 35, 36),
    Sketcher.Constraint("Equal", 36, 38),
    Sketcher.Constraint("Equal", 38, 40),
    Sketcher.Constraint("Equal", 40, 42),
    Sketcher.Constraint("Equal", 42, 44),
    Sketcher.Constraint("Equal", 44, 46),
    Sketcher.Constraint("Symmetric", 5, 3, 25, 3, -1, 1),
    Sketcher.Constraint("Symmetric", 0, 3, 28, 3, -1, 1),
    Sketcher.Constraint("Symmetric", 2, 3, 30, 3, -1, 1),
    Sketcher.Constraint("Symmetric", 13, 3, 33, 3, -1, 1),
    Sketcher.Constraint("Symmetric", 8, 3, 36, 3, -1, 1),
    Sketcher.Constraint("Symmetric", 10, 3, 38, 3, -1, 1),
    Sketcher.Constraint("Symmetric", 16, 3, 40, 3, -1, 1),
    Sketcher.Constraint("Symmetric", 18, 3, 42, 3, -1, 1),
    Sketcher.Constraint("Symmetric", 20, 3, 44, 3, -1, 1),
    Sketcher.Constraint("Symmetric", 22, 3, 46, 3, -1, 1),
    Sketcher.Constraint("Symmetric", 8, 3, 16, 3, -2),
    Sketcher.Constraint("Symmetric", 10, 3, 18, 3, -2),
    Sketcher.Constraint("Symmetric", 0, 3, 20, 3, -2),
    Sketcher.Constraint("Symmetric", 2, 3, 22, 3, -2),
    Sketcher.Constraint("Symmetric", 7, 3, 27, 3, -2),
    Sketcher.Constraint("PointOnObject", 13, 3, -2),
    Sketcher.Constraint("Perpendicular", 3, 17),
    Sketcher.Constraint("Equal", 26, 32),
    Sketcher.Constraint("Equal", 3, 9),
    Sketcher.Constraint("Diameter", 48, Q("1.5 mm")),
    Sketcher.Constraint("DistanceX", 4, 2, 4, 1, Q("4 mm")),
    Sketcher.Constraint("Angle", 1, Q("-30.000002 deg")),
    Sketcher.Constraint("Radius", 0, Q("0.25 mm")),
    Sketcher.Constraint("Distance", 1, Q("3 mm")),
    Sketcher.Constraint("DistanceY", 12, 1, 12, 2, Q("5.361077 mm")),
    Sketcher.Constraint("DistanceY", -1, 1, 0, 3, Q("6.493358 mm")),
    Sketcher.Constraint("DistanceX", 2, 3, -1, 1, Q("8.648751 mm")),
    Sketcher.Constraint("DistanceX", 8, 3, -1, 1, Q("6.493358 mm")),
    Sketcher.Constraint("DistanceY", -1, 1, 10, 3, Q("8.648751 mm")),
    Sketcher.Constraint("DistanceY", -1, 1, 15, 3, Q("7.62564 mm")),
    Sketcher.Constraint("DistanceX", 5, 3, -1, 1, Q("12.986717 mm")),
])
pocket1 = body.newObject("PartDesign::Pocket", "Pocket")
pocket1.Profile = sketch2
pocket1.Type = "ThroughAll"

# Sketch on XY plane
sketch3 = body.newObject("Sketcher::SketchObject", "Sketch002")
sketch3.AttachmentSupport = (doc.getObject("XY_Plane"), [""])
sketch3.MapMode = "FlatFace"
sketch3.AttachmentOffset = App.Placement(Vector(0, 0, 0.6), App.Rotation())
sketch3.addGeometry([
    Part.Circle(Vector(-1.9, 8.234, 0), Vector(0, 0, 1), 0.35),
    Part.Circle(Vector(-3, -7.9, 0), Vector(0, 0, 1), 0.35),
], False)
sketch3.addConstraint([
    Sketcher.Constraint("Equal", 0, 1),
    Sketcher.Constraint("Diameter", 0, Q("0.7 mm")),
    Sketcher.Constraint("DistanceX", 1, 3, -1, 1, Q("3 mm")),
    Sketcher.Constraint("DistanceX", 0, 3, -1, 1, Q("1.9 mm")),
    Sketcher.Constraint("DistanceY", 1, 3, -1, 1, Q("7.9 mm")),
    Sketcher.Constraint("DistanceY", -1, 1, 0, 3, Q("8.234 mm")),
])
pad2 = body.newObject("PartDesign::Pad", "Pad001")
pad2.Profile = sketch3
pad2.Length = 2.2
pad2.Reversed = True

doc.recompute()
